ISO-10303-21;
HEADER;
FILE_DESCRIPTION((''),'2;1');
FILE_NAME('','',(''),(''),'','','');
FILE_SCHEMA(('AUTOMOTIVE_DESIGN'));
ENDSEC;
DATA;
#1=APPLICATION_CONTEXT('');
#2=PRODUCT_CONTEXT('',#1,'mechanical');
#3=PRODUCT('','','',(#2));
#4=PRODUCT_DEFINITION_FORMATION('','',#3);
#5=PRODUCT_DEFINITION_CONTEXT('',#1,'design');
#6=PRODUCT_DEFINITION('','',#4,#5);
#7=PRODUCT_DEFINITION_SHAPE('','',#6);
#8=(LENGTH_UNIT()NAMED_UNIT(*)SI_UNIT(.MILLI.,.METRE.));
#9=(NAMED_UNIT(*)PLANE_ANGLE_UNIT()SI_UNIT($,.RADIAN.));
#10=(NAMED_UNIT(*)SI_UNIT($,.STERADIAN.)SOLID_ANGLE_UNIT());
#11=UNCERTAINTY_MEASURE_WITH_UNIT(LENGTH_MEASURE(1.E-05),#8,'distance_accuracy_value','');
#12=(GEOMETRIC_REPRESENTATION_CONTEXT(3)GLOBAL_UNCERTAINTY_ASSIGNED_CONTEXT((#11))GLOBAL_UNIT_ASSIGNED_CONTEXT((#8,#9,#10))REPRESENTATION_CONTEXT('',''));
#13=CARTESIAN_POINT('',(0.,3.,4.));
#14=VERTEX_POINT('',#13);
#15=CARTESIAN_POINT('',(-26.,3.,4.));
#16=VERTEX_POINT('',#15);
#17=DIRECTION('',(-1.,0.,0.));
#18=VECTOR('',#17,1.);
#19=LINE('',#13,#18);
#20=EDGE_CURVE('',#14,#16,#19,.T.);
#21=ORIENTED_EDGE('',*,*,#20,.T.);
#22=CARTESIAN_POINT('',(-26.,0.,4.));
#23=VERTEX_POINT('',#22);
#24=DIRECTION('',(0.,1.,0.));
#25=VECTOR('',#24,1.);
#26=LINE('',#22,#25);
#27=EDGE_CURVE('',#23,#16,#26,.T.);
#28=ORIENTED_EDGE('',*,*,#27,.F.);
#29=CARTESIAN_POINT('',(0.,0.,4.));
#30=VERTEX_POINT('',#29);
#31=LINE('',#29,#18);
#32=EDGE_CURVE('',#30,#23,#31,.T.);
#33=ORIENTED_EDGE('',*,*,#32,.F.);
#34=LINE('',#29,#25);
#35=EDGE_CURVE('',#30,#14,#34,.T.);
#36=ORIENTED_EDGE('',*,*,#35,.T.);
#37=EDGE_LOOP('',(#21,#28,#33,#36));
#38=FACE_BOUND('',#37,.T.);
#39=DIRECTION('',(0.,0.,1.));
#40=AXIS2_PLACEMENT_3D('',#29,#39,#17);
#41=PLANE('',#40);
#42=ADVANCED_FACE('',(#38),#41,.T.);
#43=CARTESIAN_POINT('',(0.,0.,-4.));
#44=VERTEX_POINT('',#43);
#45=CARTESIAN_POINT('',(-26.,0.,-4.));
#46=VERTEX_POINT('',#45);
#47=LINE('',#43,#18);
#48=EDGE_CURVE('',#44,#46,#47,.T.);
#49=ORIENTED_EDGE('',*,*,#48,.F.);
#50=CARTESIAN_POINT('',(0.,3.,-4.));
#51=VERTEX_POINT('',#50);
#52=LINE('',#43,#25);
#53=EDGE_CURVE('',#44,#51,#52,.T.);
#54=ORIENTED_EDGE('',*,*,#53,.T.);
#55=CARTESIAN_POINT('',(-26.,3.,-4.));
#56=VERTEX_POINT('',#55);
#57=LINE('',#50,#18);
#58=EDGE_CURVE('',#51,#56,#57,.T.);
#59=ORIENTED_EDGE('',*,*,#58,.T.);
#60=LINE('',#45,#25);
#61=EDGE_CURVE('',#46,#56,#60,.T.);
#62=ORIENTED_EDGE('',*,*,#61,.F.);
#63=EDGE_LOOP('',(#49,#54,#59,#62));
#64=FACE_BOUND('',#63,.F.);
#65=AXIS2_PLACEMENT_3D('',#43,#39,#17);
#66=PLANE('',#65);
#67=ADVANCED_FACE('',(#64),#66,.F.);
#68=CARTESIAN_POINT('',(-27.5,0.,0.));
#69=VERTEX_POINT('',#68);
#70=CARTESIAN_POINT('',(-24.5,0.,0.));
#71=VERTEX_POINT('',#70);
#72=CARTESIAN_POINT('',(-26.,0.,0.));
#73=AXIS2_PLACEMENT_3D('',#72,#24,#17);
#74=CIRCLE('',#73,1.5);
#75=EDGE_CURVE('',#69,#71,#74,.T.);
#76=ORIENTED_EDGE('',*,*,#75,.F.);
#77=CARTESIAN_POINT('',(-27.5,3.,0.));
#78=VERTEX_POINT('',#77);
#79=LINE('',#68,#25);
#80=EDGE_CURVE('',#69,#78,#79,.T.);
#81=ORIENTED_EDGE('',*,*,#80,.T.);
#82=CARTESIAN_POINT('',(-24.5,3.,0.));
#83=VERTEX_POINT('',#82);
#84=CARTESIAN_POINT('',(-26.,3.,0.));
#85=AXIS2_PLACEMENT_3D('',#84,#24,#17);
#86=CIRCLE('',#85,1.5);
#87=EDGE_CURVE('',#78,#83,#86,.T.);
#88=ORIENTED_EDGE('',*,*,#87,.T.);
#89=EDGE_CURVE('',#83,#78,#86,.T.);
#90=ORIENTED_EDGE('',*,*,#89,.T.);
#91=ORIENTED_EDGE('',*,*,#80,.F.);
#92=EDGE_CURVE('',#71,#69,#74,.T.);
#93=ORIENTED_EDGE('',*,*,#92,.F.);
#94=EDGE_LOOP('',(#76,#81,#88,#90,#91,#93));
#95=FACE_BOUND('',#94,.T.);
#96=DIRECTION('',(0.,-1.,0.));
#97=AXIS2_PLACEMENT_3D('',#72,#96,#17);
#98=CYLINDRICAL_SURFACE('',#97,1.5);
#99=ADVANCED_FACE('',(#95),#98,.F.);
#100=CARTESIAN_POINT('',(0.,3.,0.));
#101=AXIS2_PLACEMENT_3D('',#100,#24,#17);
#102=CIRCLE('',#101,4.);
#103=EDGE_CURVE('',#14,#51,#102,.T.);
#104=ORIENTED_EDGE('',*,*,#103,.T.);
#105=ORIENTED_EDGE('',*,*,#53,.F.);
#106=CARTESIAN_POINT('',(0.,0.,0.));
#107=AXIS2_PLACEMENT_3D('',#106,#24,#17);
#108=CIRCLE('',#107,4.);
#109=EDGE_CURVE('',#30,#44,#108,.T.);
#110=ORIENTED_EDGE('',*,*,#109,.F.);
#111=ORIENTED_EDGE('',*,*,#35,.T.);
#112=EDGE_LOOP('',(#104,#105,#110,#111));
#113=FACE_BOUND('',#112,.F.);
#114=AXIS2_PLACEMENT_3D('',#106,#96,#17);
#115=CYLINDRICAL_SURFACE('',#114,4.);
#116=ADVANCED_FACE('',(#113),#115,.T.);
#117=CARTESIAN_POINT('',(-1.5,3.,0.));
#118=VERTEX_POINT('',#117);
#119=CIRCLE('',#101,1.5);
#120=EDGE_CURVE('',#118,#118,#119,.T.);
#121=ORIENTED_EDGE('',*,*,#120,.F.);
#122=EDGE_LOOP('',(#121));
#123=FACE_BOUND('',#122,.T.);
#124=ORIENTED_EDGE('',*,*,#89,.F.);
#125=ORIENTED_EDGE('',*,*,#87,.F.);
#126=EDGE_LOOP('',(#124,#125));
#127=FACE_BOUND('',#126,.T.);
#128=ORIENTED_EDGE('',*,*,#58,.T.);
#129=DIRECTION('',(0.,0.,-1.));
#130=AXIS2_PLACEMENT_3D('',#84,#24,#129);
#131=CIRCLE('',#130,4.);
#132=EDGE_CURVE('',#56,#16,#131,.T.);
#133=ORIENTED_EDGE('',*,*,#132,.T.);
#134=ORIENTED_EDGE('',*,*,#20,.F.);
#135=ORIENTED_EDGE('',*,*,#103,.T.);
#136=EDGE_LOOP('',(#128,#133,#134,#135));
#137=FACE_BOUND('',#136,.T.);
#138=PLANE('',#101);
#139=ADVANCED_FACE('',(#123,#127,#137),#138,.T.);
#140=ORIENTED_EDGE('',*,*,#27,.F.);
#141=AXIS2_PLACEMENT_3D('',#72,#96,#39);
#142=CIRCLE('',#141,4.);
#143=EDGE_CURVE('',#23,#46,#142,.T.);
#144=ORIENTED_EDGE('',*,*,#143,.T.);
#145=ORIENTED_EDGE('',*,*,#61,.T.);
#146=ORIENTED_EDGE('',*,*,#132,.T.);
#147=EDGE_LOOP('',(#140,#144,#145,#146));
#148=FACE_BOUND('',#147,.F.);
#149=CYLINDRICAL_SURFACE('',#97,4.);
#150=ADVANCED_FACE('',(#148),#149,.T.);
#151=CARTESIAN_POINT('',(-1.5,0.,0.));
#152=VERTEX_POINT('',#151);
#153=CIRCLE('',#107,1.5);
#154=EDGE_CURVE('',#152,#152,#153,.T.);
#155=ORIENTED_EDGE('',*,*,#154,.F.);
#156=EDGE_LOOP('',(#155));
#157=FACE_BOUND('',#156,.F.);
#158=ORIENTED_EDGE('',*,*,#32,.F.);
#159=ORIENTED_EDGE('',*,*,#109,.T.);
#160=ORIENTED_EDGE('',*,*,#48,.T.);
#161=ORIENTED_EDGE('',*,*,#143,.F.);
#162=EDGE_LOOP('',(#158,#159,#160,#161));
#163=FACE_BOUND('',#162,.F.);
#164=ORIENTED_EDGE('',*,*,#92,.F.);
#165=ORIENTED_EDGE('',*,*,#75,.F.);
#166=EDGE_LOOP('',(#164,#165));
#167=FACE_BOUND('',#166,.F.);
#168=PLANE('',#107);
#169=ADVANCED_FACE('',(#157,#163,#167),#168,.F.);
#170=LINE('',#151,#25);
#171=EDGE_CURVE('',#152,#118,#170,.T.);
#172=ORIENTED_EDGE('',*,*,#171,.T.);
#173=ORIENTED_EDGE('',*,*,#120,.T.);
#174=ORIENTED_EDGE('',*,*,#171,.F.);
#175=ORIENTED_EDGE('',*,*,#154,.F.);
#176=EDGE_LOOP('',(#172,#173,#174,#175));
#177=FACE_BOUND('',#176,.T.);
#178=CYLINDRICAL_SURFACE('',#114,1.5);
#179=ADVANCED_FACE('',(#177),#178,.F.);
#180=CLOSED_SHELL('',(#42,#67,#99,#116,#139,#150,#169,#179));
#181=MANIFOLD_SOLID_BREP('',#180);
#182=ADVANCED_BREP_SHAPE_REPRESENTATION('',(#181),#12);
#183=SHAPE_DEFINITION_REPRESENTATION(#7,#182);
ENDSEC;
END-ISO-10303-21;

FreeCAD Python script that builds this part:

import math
import FreeCAD as App
import Part
import Sketcher
Q = App.Units.Quantity

doc = App.newDocument("Part")
body = doc.addObject("PartDesign::Body", "Body")

# Sketch on XZ plane
sketch1 = body.newObject("Sketcher::SketchObject", "Sketch")
sketch1.AttachmentSupport = (doc.getObject("XZ_Plane"), [""])
sketch1.MapMode = "FlatFace"
sketch1.addGeometry([
    Part.ArcOfCircle(Part.Circle(App.Vector(0, 0, 0), App.Vector(0, 0, 1), 4), math.radians(-90), math.radians(90)),  # 0
    Part.LineSegment(App.Vector(0, -4, 0), App.Vector(-26, -4, 0)),  # 1
    Part.ArcOfCircle(Part.Circle(App.Vector(-26, 0, 0), App.Vector(0, 0, 1), 4), math.radians(90), math.radians(270)),  # 2
    Part.LineSegment(App.Vector(-26, 4, 0), App.Vector(0, 4, 0)),  # 3
    Part.Circle(App.Vector(0, 0, 0), App.Vector(0, 0, 1), 1.5),  # 4
    Part.Circle(App.Vector(-26, 0, 0), App.Vector(0, 0, 1), 1.5),  # 5
], False)
sketch1.addConstraint([
    Sketcher.Constraint("Tangent", 0, 1, 1, 1),
    Sketcher.Constraint("Tangent", 1, 2, 2, 2),
    Sketcher.Constraint("Tangent", 2, 1, 3, 1),
    Sketcher.Constraint("Tangent", 3, 2, 0, 2),
    Sketcher.Constraint("Horizontal", 1),
    Sketcher.Constraint("Horizontal", 3),
    Sketcher.Constraint("Coincident", 0, 3, -1, 1),
    Sketcher.Constraint("Coincident", 4, 3, -1, 1),
    Sketcher.Constraint("Coincident", 5, 3, 2, 3),
    Sketcher.Constraint("Equal", 4, 5),
    Sketcher.Constraint("Diameter", 4, Q("3 mm")),
    Sketcher.Constraint("Radius", 0, Q("4 mm")),
    Sketcher.Constraint("DistanceX", 1, 2, 1, 1, Q("26 mm")),
])
pad1 = body.newObject("PartDesign::Pad", "Pad")
pad1.Profile = sketch1
pad1.Length = 3
pad1.Reversed = True

doc.recompute()
